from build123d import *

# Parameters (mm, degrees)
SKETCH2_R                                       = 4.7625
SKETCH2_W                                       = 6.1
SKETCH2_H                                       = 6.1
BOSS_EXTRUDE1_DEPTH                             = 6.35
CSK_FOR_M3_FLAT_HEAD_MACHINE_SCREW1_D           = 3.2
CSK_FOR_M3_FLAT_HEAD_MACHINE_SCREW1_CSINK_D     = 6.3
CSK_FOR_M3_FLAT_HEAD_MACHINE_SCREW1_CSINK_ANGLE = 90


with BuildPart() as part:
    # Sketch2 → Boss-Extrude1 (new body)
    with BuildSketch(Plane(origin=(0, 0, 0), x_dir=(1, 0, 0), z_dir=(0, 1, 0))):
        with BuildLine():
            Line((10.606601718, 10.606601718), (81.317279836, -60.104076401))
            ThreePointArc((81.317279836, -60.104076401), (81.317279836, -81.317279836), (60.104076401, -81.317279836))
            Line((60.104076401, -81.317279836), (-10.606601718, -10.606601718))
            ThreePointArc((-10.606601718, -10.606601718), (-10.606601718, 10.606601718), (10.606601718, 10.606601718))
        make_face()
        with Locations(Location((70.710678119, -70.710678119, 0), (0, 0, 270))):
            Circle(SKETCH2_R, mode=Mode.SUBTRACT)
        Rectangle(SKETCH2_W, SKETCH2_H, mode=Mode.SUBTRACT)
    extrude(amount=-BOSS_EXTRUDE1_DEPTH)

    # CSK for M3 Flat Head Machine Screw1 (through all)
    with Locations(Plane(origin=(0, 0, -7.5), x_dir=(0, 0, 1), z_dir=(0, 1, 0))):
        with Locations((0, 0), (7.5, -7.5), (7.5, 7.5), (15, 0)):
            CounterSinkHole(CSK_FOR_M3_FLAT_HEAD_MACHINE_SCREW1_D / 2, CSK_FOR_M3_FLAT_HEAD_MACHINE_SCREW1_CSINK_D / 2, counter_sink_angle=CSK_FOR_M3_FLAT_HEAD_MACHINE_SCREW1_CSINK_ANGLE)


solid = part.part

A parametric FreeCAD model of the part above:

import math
import FreeCAD as App
import Part
import Sketcher

V = App.Vector
Q = App.Units.Quantity


def add_polygon(sketch, points):
    """Adds a closed chain of lines whose ends are joined by coincident constraints."""
    first, n = sketch.GeometryCount, len(points)
    for a, b in zip(points, points[1:] + points[:1]):
        sketch.addGeometry(Part.LineSegment(App.Vector(*a, 0), App.Vector(*b, 0)), False)
    for i in range(n):
        sketch.addConstraint(Sketcher.Constraint("Coincident", first + i, 2, first + (i + 1) % n, 1))

doc = App.newDocument("Part")
body = doc.addObject("PartDesign::Body", "Body")

# Sketch on XZ plane
sketch1 = body.newObject("Sketcher::SketchObject", "Sketch")
sketch1.AttachmentSupport = (doc.getObject("XZ_Plane"), [""])
sketch1.MapMode = "FlatFace"
sketch1.addGeometry(Part.LineSegment(V(81.3, 60.1, 0), V(10.6, -10.6, 0)), False)  # 0
sketch1.addGeometry(Part.ArcOfCircle(Part.Circle(V(0, 0, 0), V(0, 0, 1), 15), math.radians(135), math.radians(315)), False)  # 1
sketch1.addGeometry(Part.LineSegment(V(-10.6, 10.6, 0), V(60.1, 81.3, 0)), False)  # 2
sketch1.addGeometry(Part.ArcOfCircle(Part.Circle(V(70.7, 70.7, 0), V(0, 0, 1), 15), math.radians(-45), math.radians(135)), False)  # 3
sketch1.addGeometry(Part.Circle(V(70.7, 70.7, 0), V(0, 0, 1), 4.8), False)  # 4
add_polygon(sketch1, [(-3, 3), (-3, -3), (3, -3), (3, 3)])  # lines 5-8
sketch1.addConstraint([
    Sketcher.Constraint("Tangent", 0, 2, 1, 2),
    Sketcher.Constraint("Tangent", 1, 1, 2, 1),
    Sketcher.Constraint("Tangent", 2, 2, 3, 2),
    Sketcher.Constraint("Tangent", 3, 1, 0, 1),
    Sketcher.Constraint("Vertical", 5),
    Sketcher.Constraint("Horizontal", 6),
    Sketcher.Constraint("Vertical", 7),
    Sketcher.Constraint("Horizontal", 8),
    Sketcher.Constraint("Coincident", 1, 3, -1, 1),
    Sketcher.Constraint("Coincident", 4, 3, 3, 3),
    Sketcher.Constraint("Equal", 1, 3),
    Sketcher.Constraint("Symmetric", 5, 2, 7, 2, -1, 1),
    Sketcher.Constraint("Equal", 8, 5),
    Sketcher.Constraint("Radius", 1, 15.0),
    Sketcher.Constraint("Angle", 0, Q("-135 deg")),
    Sketcher.Constraint("Distance", 0, 100.0),
    Sketcher.Constraint("Diameter", 4, 9.525),
    Sketcher.Constraint("DistanceX", 6, 1, 6, 2, 6.1),
])
pad1 = body.newObject("PartDesign::Pad", "Pad")
pad1.Profile = sketch1
pad1.Length = 6.35

# Sketch on XZ plane
sketch2 = body.newObject("Sketcher::SketchObject", "Sketch001")
sketch2.AttachmentSupport = (doc.getObject("XZ_Plane"), [""])
sketch2.MapMode = "FlatFace"
sketch2.addGeometry([
    Part.Circle(V(0, -7.5, 0), V(0, 0, 1), 1.6),
    Part.Circle(V(-7.5, 0, 0), V(0, 0, 1), 1.6),
    Part.Circle(V(7.5, 0, 0), V(0, 0, 1), 1.6),
    Part.Circle(V(0, 7.5, 0), V(0, 0, 1), 1.6),
], False)
sketch2.addConstraint([
    Sketcher.Constraint("Equal", 0, 1),
    Sketcher.Constraint("Equal", 1, 2),
    Sketcher.Constraint("Equal", 2, 3),
    Sketcher.Constraint("Symmetric", 1, 3, 2, 3, -1, 1),
    Sketcher.Constraint("Symmetric", 0, 3, 3, 3, -1, 1),
    Sketcher.Constraint("PointOnObject", 0, 3, -2),
    Sketcher.Constraint("PointOnObject", 1, 3, -1),
    Sketcher.Constraint("Diameter", 0, 3.2),
    Sketcher.Constraint("DistanceX", 1, 3, 2, 3, 15.0),
    Sketcher.Constraint("DistanceY", 0, 3, 3, 3, 15.0),
])
doc.recompute()
hole = body.newObject("PartDesign::Hole", "Hole")
hole.Profile = sketch2
hole.ThreadType = "None"
hole.Diameter = 3.2
hole.DepthType = "ThroughAll"
hole.HoleCutType = "Countersink"
hole.HoleCutDiameter = 6.3
hole.HoleCutCountersinkAngle = 90
hole.Reversed = True

doc.recompute()
